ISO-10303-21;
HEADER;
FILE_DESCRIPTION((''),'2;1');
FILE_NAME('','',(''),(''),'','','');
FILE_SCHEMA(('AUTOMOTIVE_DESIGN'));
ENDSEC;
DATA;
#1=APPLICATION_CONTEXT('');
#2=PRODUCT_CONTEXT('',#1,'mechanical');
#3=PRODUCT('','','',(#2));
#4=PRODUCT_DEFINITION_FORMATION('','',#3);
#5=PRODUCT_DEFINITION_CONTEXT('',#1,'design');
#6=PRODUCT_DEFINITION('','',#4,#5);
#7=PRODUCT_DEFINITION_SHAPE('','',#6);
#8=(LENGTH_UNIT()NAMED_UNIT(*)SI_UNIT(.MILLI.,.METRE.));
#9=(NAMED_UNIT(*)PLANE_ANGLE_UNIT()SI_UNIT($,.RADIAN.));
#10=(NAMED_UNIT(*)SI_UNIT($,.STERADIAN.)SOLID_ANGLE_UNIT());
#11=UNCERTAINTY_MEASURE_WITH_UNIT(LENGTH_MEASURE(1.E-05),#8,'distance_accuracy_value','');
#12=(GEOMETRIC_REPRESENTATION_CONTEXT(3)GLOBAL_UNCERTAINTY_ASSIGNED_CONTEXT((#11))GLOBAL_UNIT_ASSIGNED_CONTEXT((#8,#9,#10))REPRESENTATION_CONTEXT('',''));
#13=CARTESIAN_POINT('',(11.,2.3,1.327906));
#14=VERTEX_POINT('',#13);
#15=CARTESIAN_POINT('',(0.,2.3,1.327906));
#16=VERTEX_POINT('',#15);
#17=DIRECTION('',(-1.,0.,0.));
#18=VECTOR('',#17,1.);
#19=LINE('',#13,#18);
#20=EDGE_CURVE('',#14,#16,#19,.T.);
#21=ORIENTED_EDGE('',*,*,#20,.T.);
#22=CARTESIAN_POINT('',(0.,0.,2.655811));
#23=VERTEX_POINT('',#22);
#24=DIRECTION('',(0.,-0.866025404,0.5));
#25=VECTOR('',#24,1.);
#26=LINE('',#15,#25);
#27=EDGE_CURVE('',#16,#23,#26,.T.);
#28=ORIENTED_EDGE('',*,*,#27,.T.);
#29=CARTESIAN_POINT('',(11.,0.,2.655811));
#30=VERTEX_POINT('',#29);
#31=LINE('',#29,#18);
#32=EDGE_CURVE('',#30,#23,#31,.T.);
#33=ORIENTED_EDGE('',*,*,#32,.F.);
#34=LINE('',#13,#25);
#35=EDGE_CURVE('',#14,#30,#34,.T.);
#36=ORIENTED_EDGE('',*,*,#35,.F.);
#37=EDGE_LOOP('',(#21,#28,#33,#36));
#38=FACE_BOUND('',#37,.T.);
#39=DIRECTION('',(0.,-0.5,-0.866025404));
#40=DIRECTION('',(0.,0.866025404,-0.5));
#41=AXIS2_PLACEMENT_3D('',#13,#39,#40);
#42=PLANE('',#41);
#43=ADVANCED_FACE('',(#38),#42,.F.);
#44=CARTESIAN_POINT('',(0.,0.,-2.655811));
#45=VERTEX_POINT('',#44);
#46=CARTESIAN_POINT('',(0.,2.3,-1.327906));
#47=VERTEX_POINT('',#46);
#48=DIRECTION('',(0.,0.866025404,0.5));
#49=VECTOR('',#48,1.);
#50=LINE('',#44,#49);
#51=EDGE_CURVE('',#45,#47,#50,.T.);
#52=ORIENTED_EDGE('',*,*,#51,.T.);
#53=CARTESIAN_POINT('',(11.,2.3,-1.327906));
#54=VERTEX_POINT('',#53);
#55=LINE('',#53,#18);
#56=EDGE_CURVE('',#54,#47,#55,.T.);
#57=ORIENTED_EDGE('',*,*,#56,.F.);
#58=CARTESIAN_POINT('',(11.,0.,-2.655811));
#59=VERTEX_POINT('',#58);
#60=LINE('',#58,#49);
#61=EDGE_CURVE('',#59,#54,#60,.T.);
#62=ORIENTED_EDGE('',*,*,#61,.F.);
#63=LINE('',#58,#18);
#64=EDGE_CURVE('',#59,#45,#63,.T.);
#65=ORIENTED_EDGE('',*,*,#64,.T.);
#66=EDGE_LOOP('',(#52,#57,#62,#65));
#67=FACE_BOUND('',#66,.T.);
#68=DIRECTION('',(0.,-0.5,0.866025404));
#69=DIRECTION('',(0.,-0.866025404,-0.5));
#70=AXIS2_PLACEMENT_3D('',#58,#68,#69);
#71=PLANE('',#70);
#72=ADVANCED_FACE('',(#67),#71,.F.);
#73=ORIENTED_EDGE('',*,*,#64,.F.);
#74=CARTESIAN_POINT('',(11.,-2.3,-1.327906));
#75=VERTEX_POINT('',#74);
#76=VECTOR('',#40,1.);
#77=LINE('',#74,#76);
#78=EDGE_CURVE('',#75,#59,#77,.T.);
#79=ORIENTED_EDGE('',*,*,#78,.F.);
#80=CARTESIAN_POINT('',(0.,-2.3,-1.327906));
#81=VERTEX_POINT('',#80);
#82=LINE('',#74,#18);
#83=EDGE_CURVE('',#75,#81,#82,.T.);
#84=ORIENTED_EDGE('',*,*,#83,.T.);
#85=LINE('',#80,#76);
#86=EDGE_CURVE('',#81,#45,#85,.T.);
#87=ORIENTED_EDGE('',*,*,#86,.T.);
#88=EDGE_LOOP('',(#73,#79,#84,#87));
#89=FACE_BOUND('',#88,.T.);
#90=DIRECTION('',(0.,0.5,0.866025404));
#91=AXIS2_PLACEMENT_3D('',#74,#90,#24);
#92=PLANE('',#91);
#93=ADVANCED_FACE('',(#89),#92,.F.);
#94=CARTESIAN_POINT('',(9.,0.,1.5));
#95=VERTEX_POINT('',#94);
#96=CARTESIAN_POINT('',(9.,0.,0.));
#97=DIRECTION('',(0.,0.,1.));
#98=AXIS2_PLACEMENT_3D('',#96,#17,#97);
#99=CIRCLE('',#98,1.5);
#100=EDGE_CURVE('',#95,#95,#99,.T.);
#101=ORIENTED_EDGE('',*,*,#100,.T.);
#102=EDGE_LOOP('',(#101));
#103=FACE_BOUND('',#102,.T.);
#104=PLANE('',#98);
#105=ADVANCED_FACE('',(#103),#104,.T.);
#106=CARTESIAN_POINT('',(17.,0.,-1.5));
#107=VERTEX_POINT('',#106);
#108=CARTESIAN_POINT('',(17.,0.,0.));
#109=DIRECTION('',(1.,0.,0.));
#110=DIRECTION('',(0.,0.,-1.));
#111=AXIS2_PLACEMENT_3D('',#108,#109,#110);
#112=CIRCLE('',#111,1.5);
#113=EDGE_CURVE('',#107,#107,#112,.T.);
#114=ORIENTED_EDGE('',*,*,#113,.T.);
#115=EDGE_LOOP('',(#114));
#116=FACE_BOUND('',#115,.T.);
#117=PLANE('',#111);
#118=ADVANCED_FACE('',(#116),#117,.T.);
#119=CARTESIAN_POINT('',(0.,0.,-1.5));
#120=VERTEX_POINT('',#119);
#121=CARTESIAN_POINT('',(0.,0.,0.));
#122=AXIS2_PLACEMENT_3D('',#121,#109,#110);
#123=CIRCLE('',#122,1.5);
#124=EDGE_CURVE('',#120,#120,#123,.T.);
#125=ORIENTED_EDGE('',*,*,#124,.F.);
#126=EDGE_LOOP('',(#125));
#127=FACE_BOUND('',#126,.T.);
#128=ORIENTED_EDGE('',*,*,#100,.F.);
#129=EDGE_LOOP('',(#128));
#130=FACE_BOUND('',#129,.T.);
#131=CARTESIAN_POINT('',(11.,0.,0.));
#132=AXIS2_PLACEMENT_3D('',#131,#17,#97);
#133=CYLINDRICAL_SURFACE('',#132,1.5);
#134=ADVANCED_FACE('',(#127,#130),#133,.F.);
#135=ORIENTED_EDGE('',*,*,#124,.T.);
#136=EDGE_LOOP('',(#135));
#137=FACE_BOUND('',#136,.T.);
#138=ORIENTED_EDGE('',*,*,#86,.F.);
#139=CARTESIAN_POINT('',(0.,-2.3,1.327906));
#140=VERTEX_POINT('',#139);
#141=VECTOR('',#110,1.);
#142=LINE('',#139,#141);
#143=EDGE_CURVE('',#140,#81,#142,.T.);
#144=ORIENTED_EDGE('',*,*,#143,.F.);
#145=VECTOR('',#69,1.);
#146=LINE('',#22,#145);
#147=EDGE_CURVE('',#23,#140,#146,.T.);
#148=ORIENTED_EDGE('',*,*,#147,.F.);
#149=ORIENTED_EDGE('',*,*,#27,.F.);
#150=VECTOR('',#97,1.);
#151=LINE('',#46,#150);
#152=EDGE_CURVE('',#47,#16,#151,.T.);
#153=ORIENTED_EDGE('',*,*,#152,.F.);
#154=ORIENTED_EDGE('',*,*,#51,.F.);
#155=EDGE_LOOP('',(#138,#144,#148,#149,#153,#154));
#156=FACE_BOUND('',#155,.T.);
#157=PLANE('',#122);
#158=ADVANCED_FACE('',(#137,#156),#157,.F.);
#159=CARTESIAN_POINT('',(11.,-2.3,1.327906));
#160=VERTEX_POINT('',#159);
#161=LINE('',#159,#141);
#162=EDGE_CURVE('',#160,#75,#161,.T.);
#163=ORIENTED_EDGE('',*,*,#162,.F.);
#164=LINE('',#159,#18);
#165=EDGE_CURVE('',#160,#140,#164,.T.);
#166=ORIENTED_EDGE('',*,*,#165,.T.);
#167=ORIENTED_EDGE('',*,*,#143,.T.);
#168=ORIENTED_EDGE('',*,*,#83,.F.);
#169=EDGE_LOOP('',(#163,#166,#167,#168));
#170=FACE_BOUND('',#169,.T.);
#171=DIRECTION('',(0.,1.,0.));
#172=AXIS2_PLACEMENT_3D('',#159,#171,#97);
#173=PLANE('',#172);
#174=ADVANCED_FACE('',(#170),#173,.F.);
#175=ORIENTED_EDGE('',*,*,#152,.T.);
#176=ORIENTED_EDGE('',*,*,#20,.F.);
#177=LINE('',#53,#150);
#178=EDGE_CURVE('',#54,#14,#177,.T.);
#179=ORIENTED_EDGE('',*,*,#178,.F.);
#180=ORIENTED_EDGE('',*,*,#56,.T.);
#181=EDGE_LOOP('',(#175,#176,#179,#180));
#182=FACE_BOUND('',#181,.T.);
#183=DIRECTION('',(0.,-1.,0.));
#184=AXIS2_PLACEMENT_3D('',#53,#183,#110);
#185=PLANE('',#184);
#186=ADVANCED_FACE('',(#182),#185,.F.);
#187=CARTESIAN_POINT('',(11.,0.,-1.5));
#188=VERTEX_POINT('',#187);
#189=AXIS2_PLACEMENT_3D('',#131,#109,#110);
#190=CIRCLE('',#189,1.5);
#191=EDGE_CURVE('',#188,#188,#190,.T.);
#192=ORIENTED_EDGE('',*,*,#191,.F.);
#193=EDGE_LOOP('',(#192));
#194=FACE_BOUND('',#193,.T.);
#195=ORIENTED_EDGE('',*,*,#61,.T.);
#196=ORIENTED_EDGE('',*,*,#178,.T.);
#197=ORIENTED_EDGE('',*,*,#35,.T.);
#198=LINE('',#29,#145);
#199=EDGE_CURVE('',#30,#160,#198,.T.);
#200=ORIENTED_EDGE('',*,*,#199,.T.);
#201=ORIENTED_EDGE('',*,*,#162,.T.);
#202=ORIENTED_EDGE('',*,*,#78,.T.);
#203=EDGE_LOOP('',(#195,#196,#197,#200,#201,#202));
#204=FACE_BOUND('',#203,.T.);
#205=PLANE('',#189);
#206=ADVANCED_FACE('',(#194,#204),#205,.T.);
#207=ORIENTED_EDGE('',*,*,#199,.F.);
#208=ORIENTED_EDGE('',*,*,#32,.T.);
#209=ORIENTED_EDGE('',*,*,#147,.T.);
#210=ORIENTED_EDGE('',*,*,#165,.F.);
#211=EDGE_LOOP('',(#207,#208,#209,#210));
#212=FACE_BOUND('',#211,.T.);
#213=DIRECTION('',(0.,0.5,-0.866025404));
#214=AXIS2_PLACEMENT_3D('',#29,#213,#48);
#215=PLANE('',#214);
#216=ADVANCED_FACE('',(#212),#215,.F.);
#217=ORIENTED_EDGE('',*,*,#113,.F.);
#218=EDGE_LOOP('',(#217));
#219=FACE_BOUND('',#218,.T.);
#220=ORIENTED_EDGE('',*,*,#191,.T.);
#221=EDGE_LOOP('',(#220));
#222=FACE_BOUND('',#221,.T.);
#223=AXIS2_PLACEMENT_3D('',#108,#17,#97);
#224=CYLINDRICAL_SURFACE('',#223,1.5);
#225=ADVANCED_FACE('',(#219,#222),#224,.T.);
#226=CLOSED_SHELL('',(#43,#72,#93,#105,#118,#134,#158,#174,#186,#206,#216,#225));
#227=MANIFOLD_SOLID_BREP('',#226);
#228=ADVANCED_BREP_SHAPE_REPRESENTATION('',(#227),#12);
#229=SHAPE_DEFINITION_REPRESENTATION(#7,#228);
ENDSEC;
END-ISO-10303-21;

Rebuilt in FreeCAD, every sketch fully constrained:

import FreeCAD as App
import Part
import Sketcher

V = App.Vector
Q = App.Units.Quantity

doc = App.newDocument("Part")
body = doc.addObject("PartDesign::Body", "Body")

sketch1 = doc.addObject("Sketcher::SketchObject", "Sketch")
body.addObject(sketch1)
sketch1.AttachmentSupport = (doc.YZ_Plane, [""])
sketch1.MapMode = "FlatFace"
sketch1.addGeometry(Part.LineSegment(V(2.3, -1.327906, 0), V(2.3, 1.327906, 0)), False)
sketch1.addGeometry(Part.LineSegment(V(2.3, 1.327906, 0), V(0, 2.655811, 0)), False)
sketch1.addGeometry(Part.LineSegment(V(0, 2.655811, 0), V(-2.3, 1.327906, 0)), False)
sketch1.addGeometry(Part.LineSegment(V(-2.3, 1.327906, 0), V(-2.3, -1.327906, 0)), False)
sketch1.addGeometry(Part.LineSegment(V(-2.3, -1.327906, 0), V(0, -2.655811, 0)), False)
sketch1.addGeometry(Part.LineSegment(V(0, -2.655811, 0), V(2.3, -1.327906, 0)), False)
sketch1.addGeometry(Part.Circle(V(0, 0, 0), V(0, 0, 1), 1.5), False)
sketch1.addConstraint(Sketcher.Constraint("Coincident", 0, 2, 1, 1))
sketch1.addConstraint(Sketcher.Constraint("Coincident", 1, 2, 2, 1))
sketch1.addConstraint(Sketcher.Constraint("Coincident", 2, 2, 3, 1))
sketch1.addConstraint(Sketcher.Constraint("Coincident", 3, 2, 4, 1))
sketch1.addConstraint(Sketcher.Constraint("Coincident", 4, 2, 5, 1))
sketch1.addConstraint(Sketcher.Constraint("Coincident", 5, 2, 0, 1))
sketch1.addConstraint(Sketcher.Constraint("Vertical", 0))
sketch1.addConstraint(Sketcher.Constraint("Vertical", 3))
sketch1.addConstraint(Sketcher.Constraint("Coincident", 6, 3, -1, 1))
sketch1.addConstraint(Sketcher.Constraint("Symmetric", 0, 2, 3, 2, -1, 1))
sketch1.addConstraint(Sketcher.Constraint("Symmetric", 1, 2, 4, 2, -1, 1))
sketch1.addConstraint(Sketcher.Constraint("PointOnObject", 1, 2, -2))
sketch1.addConstraint(Sketcher.Constraint("Parallel", 2, 5))
sketch1.addConstraint(Sketcher.Constraint("Horizontal", 0, 2, 2, 2))
sketch1.addConstraint(Sketcher.Constraint("Diameter", 6, Q("3 mm")))
sketch1.addConstraint(Sketcher.Constraint("Angle", 1, Q("150 deg")))
sketch1.addConstraint(Sketcher.Constraint("DistanceX", -1, 1, 0, 2, Q("2.3 mm")))
sketch1.addConstraint(Sketcher.Constraint("DistanceY", 0, 1, 0, 2, Q("2.655811 mm")))
pad1 = doc.addObject("PartDesign::Pad", "Pad")
body.addObject(pad1)
pad1.Profile = sketch1
pad1.Length = 11
body2 = doc.addObject("PartDesign::Body", "Body001")

sketch2 = doc.addObject("Sketcher::SketchObject", "Sketch001")
body2.addObject(sketch2)
sketch2.AttachmentSupport = (doc.getObject("YZ_Plane001"), [""])
sketch2.MapMode = "FlatFace"
sketch2.AttachmentOffset = App.Placement(V(0, 0, 11), App.Rotation())
sketch2.addGeometry(Part.Circle(V(0, 0, 0), V(0, 0, 1), 1.5), False)
sketch2.addConstraint(Sketcher.Constraint("Coincident", 0, 3, -1, 1))
sketch2.addConstraint(Sketcher.Constraint("Diameter", 0, Q("3 mm")))
pad2 = doc.addObject("PartDesign::Pad", "Pad001")
body2.addObject(pad2)
pad2.Profile = sketch2
pad2.Length = 6
body.AllowCompound = True
doc.recompute()

boolean = doc.addObject("PartDesign::Boolean", "Boolean")
body.addObject(boolean)
boolean.Type = "Fuse"
boolean.addObjects([body2])

sketch3 = doc.addObject("Sketcher::SketchObject", "Sketch002")
body.addObject(sketch3)
sketch3.AttachmentSupport = (doc.YZ_Plane, [""])
sketch3.MapMode = "FlatFace"
sketch3.AttachmentOffset = App.Placement(V(0, 0, 11), App.Rotation())
sketch3.addGeometry(Part.LineSegment(V(2.3, -1.327906, 0), V(0, -2.655811, 0)), False)
sketch3.addGeometry(Part.LineSegment(V(0, -2.655811, 0), V(-2.3, -1.327906, 0)), False)
sketch3.addGeometry(Part.LineSegment(V(-2.3, -1.327906, 0), V(-2.3, 1.327906, 0)), False)
sketch3.addGeometry(Part.LineSegment(V(-2.3, 1.327906, 0), V(0, 2.655811, 0)), False)
sketch3.addGeometry(Part.LineSegment(V(0, 2.655811, 0), V(2.3, 1.327906, 0)), False)
sketch3.addGeometry(Part.LineSegment(V(2.3, 1.327906, 0), V(2.3, -1.327906, 0)), False)
sketch3.addConstraint(Sketcher.Constraint("Coincident", 0, 2, 1, 1))
sketch3.addConstraint(Sketcher.Constraint("Coincident", 1, 2, 2, 1))
sketch3.addConstraint(Sketcher.Constraint("Coincident", 2, 2, 3, 1))
sketch3.addConstraint(Sketcher.Constraint("Coincident", 3, 2, 4, 1))
sketch3.addConstraint(Sketcher.Constraint("Coincident", 4, 2, 5, 1))
sketch3.addConstraint(Sketcher.Constraint("Coincident", 5, 2, 0, 1))
sketch3.addConstraint(Sketcher.Constraint("Vertical", 2))
sketch3.addConstraint(Sketcher.Constraint("Vertical", 5))
sketch3.addConstraint(Sketcher.Constraint("Symmetric", 0, 2, 3, 2, -1, 1))
sketch3.addConstraint(Sketcher.Constraint("Symmetric", 1, 2, 4, 2, -1, 1))
sketch3.addConstraint(Sketcher.Constraint("PointOnObject", 0, 2, -2))
sketch3.addConstraint(Sketcher.Constraint("Parallel", 0, 3))
sketch3.addConstraint(Sketcher.Constraint("Horizontal", 2, 2, 4, 2))
sketch3.addConstraint(Sketcher.Constraint("Angle", 0, Q("-150 deg")))
sketch3.addConstraint(Sketcher.Constraint("DistanceX", 1, 2, -1, 1, Q("2.3 mm")))
sketch3.addConstraint(Sketcher.Constraint("DistanceY", 2, 1, 2, 2, Q("2.655811 mm")))
pad3 = doc.addObject("PartDesign::Pad", "Pad002")
body.addObject(pad3)
pad3.Profile = sketch3
pad3.Length = 2
pad3.Reversed = True

doc.recompute()
